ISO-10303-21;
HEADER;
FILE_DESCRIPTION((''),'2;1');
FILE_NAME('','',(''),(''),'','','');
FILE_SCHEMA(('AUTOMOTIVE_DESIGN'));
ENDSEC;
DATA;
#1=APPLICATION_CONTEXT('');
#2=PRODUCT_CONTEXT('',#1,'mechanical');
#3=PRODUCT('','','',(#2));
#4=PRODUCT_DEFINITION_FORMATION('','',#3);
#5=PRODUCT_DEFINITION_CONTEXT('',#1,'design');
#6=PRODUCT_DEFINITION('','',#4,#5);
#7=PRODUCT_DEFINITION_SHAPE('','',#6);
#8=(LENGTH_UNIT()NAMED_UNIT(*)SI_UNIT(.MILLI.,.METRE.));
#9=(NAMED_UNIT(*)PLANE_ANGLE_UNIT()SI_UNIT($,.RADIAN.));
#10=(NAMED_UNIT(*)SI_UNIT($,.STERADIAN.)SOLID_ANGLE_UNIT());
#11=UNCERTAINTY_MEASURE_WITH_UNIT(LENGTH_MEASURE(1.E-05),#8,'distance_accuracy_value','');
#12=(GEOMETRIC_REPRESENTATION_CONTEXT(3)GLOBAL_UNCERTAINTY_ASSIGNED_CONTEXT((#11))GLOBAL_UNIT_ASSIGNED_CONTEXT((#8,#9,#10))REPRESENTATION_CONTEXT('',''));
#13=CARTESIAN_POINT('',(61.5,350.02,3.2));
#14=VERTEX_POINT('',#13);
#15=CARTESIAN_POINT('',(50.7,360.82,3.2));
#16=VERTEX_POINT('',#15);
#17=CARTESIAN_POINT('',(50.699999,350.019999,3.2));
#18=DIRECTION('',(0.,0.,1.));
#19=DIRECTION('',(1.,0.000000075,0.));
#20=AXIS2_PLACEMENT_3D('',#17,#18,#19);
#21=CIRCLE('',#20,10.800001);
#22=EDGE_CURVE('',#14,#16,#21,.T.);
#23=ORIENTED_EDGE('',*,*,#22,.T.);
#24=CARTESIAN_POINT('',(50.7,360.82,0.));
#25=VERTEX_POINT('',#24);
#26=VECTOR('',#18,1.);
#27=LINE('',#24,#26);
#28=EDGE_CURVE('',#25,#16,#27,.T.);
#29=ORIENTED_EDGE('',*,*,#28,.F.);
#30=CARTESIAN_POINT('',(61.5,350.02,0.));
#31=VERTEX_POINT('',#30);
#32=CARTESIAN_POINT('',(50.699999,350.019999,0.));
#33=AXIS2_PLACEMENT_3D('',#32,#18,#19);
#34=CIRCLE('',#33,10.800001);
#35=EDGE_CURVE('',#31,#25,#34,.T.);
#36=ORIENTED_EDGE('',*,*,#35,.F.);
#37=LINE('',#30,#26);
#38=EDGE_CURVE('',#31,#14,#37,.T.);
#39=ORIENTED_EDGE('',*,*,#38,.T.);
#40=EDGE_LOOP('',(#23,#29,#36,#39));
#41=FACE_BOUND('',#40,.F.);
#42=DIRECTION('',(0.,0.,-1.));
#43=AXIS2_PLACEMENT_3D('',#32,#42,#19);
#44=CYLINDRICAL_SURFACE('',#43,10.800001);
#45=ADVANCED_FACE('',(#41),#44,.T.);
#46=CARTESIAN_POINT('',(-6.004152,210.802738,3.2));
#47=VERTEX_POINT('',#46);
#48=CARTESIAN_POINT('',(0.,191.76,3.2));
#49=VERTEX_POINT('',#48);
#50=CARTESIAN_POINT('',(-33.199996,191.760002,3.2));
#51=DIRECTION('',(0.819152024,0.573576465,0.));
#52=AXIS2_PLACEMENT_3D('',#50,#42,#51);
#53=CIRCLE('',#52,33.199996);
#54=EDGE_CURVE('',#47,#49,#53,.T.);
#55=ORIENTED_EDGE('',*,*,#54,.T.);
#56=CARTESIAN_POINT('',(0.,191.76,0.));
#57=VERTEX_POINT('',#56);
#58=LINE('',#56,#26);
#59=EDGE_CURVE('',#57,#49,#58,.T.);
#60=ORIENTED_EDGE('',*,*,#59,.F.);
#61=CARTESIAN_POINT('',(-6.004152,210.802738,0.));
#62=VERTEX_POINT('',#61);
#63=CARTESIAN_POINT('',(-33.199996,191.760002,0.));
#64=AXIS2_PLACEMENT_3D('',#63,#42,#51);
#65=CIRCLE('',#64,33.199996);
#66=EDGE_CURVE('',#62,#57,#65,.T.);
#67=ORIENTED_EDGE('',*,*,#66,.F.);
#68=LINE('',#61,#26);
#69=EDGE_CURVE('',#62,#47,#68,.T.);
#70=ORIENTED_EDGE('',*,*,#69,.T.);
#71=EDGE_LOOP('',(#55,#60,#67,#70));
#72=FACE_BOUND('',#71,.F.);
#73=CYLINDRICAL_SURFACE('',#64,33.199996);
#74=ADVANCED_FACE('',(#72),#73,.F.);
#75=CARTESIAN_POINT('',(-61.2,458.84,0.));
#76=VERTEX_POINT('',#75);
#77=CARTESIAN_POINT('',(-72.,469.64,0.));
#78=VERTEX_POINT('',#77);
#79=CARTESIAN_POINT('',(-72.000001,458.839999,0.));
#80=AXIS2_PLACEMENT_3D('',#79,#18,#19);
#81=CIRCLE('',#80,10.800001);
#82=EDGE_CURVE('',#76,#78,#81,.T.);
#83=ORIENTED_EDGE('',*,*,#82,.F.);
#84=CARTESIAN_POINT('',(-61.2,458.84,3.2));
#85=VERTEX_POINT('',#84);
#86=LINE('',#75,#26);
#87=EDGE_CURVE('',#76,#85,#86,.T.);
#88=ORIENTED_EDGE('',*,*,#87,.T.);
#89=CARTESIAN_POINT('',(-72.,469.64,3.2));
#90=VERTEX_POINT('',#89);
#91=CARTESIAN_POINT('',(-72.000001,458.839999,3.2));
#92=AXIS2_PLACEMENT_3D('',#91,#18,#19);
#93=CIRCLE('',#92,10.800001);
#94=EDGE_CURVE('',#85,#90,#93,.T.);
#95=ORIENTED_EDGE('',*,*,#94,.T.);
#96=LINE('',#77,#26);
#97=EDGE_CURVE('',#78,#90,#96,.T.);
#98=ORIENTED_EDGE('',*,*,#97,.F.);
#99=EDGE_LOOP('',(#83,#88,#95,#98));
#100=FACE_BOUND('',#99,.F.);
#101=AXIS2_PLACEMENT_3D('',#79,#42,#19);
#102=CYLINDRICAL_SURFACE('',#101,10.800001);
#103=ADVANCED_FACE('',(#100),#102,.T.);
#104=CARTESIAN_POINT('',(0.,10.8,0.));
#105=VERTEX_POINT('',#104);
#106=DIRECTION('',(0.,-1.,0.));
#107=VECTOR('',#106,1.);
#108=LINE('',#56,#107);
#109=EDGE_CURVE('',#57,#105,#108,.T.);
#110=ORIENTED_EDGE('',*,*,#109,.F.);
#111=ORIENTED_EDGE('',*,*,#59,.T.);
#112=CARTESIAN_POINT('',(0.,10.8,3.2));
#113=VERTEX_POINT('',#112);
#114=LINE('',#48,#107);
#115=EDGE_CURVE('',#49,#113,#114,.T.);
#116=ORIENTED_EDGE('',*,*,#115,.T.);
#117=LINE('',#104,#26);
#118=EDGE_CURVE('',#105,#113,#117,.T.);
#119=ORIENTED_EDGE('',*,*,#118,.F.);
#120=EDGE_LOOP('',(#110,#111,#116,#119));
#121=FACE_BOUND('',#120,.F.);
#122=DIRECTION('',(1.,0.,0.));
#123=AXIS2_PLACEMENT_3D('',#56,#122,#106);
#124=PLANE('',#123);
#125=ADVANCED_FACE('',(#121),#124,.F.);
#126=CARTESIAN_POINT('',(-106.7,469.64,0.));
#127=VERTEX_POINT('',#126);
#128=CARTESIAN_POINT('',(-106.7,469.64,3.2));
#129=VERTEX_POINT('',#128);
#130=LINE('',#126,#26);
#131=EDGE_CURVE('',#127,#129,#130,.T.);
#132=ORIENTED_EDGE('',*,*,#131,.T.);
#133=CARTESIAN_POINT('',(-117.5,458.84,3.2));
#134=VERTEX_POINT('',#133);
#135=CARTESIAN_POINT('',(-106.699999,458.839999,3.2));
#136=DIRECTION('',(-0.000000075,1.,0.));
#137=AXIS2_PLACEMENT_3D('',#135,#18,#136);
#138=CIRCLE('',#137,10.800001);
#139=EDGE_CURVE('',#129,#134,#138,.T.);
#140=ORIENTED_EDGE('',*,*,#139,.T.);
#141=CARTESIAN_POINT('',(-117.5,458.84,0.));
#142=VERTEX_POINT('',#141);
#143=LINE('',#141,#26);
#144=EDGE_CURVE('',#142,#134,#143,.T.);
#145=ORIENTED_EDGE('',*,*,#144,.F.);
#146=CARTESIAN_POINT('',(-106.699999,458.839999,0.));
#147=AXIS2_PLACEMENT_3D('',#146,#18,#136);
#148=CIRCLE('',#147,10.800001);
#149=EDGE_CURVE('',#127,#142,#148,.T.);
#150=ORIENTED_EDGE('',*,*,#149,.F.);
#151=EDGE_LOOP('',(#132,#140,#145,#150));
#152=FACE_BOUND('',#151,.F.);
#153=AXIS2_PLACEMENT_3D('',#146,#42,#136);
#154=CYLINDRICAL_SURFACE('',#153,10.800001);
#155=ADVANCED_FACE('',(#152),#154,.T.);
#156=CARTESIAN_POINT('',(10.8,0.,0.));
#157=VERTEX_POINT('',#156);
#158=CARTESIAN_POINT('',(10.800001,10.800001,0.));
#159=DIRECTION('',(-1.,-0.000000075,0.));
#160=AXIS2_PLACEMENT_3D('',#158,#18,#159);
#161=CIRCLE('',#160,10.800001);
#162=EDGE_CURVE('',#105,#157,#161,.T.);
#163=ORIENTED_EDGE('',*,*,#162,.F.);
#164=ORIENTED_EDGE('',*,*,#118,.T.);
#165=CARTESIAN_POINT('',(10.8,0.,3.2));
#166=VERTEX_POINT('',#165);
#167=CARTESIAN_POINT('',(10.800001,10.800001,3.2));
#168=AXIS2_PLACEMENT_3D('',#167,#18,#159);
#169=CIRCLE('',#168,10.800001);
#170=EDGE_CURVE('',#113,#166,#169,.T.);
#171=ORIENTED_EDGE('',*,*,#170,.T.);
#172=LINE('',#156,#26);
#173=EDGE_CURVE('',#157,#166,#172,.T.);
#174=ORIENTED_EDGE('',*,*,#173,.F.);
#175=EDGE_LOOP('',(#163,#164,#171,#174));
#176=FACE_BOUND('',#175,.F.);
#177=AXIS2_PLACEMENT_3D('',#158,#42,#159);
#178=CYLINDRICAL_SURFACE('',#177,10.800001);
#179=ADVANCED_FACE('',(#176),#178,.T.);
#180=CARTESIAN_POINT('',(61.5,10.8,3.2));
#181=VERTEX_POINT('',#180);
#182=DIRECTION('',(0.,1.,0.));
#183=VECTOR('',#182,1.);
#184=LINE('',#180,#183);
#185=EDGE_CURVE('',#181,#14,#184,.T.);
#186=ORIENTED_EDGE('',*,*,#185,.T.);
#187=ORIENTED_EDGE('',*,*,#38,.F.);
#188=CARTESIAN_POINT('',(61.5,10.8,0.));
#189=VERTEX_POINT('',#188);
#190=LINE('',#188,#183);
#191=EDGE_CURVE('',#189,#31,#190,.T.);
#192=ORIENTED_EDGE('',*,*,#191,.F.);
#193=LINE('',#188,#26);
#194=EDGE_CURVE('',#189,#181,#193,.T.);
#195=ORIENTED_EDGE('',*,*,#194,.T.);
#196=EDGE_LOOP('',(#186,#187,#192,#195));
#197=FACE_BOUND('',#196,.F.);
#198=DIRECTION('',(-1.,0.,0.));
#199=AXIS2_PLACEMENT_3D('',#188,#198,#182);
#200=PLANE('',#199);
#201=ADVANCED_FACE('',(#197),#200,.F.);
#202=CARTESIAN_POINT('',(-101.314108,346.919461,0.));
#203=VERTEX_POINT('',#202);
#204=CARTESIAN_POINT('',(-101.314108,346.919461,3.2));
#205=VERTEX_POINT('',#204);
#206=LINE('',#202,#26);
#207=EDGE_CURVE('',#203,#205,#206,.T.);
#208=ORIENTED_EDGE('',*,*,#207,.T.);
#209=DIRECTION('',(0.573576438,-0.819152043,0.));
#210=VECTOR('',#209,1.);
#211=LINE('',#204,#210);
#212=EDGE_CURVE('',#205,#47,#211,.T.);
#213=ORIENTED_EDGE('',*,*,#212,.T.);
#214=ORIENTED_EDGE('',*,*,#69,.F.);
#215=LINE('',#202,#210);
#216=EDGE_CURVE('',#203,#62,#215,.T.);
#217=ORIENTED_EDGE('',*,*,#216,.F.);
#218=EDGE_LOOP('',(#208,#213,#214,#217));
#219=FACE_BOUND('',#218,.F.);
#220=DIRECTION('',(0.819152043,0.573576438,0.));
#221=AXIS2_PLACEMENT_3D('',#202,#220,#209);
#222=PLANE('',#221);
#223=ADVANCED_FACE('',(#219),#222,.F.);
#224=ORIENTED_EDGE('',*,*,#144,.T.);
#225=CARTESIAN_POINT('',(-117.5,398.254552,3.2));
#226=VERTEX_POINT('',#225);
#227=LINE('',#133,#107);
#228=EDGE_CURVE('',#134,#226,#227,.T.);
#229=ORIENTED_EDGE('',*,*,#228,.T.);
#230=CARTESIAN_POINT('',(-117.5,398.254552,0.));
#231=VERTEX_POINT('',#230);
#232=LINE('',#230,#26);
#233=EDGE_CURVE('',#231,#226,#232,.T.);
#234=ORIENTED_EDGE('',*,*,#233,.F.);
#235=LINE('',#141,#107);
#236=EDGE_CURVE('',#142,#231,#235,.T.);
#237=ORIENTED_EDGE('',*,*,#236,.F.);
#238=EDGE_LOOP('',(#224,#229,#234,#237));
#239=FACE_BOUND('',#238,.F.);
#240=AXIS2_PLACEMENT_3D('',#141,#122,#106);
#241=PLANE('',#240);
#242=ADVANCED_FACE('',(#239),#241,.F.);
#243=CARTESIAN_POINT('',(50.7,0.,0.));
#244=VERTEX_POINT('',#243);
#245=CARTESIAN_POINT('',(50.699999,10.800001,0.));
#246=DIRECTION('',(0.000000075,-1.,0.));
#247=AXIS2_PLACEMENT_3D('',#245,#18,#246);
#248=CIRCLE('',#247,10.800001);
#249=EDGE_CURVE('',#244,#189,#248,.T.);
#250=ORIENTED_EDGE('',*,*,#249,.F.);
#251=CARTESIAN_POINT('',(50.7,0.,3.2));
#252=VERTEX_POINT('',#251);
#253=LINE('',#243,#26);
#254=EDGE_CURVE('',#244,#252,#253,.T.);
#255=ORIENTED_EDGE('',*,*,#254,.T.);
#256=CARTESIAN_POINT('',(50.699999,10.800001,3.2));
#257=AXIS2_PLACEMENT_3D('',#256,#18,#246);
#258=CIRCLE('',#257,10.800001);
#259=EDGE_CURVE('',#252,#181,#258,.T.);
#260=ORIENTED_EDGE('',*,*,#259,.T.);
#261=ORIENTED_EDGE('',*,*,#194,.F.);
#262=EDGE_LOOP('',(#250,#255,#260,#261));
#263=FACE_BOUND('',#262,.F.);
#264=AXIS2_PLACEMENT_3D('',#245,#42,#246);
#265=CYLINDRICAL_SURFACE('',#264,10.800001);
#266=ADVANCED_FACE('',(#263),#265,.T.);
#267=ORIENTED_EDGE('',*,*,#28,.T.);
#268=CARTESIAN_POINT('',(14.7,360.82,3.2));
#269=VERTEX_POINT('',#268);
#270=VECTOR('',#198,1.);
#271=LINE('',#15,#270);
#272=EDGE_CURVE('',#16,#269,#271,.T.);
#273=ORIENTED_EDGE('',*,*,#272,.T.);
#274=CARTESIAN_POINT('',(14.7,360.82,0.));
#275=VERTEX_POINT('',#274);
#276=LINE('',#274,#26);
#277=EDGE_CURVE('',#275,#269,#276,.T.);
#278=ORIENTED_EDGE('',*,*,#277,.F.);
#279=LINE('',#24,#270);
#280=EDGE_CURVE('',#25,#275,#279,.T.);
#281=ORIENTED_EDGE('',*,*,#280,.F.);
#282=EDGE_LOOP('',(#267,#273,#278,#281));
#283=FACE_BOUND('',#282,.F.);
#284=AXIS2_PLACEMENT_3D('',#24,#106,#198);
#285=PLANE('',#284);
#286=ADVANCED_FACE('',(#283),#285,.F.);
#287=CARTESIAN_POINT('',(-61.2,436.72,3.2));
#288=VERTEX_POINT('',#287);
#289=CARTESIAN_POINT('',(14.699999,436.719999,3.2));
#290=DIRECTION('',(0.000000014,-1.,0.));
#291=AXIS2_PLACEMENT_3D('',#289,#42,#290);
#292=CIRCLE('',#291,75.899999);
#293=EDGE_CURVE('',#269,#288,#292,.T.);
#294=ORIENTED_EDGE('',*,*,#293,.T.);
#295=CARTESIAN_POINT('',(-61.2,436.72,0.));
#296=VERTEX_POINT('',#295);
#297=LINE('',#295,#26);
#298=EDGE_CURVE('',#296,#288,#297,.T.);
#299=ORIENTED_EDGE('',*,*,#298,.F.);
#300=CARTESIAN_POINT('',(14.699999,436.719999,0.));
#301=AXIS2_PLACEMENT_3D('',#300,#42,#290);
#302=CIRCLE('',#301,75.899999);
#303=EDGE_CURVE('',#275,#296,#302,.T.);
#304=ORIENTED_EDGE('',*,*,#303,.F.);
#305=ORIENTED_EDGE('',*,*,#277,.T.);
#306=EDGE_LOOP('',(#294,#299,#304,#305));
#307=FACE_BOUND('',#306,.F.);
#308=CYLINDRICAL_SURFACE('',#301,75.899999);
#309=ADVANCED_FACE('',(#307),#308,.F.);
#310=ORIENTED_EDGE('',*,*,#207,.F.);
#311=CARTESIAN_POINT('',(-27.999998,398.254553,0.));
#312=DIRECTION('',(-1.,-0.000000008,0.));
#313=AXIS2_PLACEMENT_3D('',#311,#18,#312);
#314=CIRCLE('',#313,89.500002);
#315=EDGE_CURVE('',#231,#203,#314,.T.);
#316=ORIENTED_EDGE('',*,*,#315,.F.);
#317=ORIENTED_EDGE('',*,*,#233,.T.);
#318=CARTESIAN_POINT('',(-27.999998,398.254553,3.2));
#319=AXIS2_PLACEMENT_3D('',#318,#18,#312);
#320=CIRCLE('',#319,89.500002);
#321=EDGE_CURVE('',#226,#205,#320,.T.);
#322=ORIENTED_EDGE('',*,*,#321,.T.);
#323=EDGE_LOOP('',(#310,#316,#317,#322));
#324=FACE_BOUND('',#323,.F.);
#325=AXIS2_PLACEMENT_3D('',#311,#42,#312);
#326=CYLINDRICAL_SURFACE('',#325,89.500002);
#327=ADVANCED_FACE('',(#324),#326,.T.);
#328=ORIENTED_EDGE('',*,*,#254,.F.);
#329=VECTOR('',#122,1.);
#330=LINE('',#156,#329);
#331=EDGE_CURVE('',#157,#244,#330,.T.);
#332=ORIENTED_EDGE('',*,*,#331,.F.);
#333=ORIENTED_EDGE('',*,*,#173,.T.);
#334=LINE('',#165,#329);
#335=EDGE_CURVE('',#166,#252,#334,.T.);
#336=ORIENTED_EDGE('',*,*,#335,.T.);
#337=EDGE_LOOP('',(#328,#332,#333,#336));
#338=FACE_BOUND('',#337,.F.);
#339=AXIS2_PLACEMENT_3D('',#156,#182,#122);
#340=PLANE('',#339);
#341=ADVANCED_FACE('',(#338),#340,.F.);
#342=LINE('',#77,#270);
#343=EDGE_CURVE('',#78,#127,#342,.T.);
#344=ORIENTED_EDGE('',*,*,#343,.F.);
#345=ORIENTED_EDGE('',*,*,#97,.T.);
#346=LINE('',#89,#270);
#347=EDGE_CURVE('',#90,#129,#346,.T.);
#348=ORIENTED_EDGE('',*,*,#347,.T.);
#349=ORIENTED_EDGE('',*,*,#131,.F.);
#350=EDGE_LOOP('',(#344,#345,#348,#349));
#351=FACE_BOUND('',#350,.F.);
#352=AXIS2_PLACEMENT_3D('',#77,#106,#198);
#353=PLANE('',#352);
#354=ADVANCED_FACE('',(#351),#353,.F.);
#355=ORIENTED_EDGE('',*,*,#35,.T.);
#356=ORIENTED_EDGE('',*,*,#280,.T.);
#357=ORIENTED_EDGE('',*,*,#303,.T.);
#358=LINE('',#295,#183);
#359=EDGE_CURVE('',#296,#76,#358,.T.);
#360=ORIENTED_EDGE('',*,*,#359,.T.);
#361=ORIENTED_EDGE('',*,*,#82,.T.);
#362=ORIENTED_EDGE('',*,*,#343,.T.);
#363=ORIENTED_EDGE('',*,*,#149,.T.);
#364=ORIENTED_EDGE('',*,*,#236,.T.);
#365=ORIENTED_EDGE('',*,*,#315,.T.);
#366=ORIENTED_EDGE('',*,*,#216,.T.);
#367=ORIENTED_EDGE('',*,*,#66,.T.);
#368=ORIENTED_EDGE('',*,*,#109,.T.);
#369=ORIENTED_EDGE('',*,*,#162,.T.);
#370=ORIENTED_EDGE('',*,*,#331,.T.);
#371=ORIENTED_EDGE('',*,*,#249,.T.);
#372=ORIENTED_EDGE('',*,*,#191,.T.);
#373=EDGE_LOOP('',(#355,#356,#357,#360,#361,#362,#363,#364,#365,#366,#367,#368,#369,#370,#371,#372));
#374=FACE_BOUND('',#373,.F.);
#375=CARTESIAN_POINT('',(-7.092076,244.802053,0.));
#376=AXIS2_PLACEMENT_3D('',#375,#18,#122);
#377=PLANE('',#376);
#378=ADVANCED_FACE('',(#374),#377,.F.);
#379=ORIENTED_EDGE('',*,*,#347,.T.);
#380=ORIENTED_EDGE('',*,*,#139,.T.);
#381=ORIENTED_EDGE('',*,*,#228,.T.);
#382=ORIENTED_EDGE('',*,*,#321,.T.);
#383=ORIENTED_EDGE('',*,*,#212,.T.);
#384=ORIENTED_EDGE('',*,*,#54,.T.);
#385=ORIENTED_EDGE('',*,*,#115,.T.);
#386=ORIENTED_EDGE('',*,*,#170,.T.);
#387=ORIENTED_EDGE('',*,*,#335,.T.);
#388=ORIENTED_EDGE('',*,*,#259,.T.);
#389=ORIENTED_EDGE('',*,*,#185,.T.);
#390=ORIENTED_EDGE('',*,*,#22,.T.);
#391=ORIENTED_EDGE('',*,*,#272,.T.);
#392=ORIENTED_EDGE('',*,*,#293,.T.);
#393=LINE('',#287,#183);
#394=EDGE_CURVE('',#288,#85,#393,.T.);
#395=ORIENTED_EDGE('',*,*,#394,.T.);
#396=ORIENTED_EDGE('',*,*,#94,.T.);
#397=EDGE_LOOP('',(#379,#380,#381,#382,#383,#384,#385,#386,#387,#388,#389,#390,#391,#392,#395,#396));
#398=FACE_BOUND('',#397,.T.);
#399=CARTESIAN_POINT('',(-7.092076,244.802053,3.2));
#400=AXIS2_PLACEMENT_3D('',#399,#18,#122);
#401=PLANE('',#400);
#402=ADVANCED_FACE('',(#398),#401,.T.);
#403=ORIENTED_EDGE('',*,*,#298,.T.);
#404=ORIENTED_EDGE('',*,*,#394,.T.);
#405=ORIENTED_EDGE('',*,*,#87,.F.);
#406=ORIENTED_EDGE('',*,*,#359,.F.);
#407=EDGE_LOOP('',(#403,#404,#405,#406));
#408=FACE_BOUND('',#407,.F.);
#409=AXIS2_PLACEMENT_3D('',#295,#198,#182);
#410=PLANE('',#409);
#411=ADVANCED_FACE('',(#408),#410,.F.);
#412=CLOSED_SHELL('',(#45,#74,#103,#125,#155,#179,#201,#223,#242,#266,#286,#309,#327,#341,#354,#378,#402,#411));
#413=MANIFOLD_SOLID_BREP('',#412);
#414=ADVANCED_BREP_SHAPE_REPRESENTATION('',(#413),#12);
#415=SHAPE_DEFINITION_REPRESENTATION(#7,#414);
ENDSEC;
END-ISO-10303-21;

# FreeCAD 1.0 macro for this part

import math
import FreeCAD as App
import Part
import Sketcher

V = App.Vector
Q = App.Units.Quantity

doc = App.newDocument("Part")
params = doc.addObject("Spreadsheet::Sheet", "Params")
for row, (alias, value) in enumerate([
    ("sketch1_radius", "10.800001 mm"),
    ("sketch1_radius2", "75.899999 mm"),
    ("sketch1_width", "36 mm"),
    ("sketch1_width2", "39.9 mm"),
    ("sketch1_width3", "34.7 mm"),
    ("pad1_length", "3.2 mm"),
], start=1):
    params.set(f"A{row}", alias)
    params.set(f"B{row}", "=" + value)
    params.setAlias(f"B{row}", alias)

body = doc.addObject("PartDesign::Body", "Body")

# Sketch on XY plane
sketch1 = body.newObject("Sketcher::SketchObject", "Sketch")
sketch1.AttachmentSupport = (doc.getObject("XY_Plane"), [""])
sketch1.MapMode = "FlatFace"
sketch1.addGeometry([
    Part.LineSegment(V(0, 192, 0), V(0, 11, 0)),  # 0
    Part.ArcOfCircle(Part.Circle(V(11, 11, 0), V(0, 0, 1), 11), math.radians(-180), math.radians(-90)),  # 1
    Part.LineSegment(V(11, 0, 0), V(51, 0, 0)),  # 2
    Part.ArcOfCircle(Part.Circle(V(51, 11, 0), V(0, 0, 1), 11), math.radians(-90), math.radians(0)),  # 3
    Part.LineSegment(V(62, 11, 0), V(62, 350, 0)),  # 4
    Part.ArcOfCircle(Part.Circle(V(51, 350, 0), V(0, 0, 1), 11), math.radians(0), math.radians(90)),  # 5
    Part.LineSegment(V(51, 361, 0), V(15, 361, 0)),  # 6
    Part.ArcOfCircle(Part.Circle(V(15, 437, 0), V(0, 0, 1), 76), math.radians(180), math.radians(270)),  # 7
    Part.LineSegment(V(-61, 437, 0), V(-61, 459, 0)),  # 8
    Part.ArcOfCircle(Part.Circle(V(-72, 459, 0), V(0, 0, 1), 11), math.radians(0), math.radians(90)),  # 9
    Part.LineSegment(V(-72, 470, 0), V(-107, 470, 0)),  # 10
    Part.ArcOfCircle(Part.Circle(V(-107, 459, 0), V(0, 0, 1), 11), math.radians(90), math.radians(180)),  # 11
    Part.LineSegment(V(-118, 459, 0), V(-118, 398, 0)),  # 12
    Part.ArcOfCircle(Part.Circle(V(-28, 398, 0), V(0, 0, 1), 90), math.radians(-180), math.radians(-145)),  # 13
    Part.LineSegment(V(-101, 347, 0), V(-6, 211, 0)),  # 14
    Part.ArcOfCircle(Part.Circle(V(-33, 192, 0), V(0, 0, 1), 33), math.radians(0), math.radians(35)),  # 15
], False)
sketch1.addConstraint([
    Sketcher.Constraint("Tangent", 0, 2, 1, 1),
    Sketcher.Constraint("Tangent", 1, 2, 2, 1),
    Sketcher.Constraint("Tangent", 2, 2, 3, 1),
    Sketcher.Constraint("Tangent", 3, 2, 4, 1),
    Sketcher.Constraint("Tangent", 4, 2, 5, 1),
    Sketcher.Constraint("Tangent", 5, 2, 6, 1),
    Sketcher.Constraint("Tangent", 6, 2, 7, 2),
    Sketcher.Constraint("Tangent", 7, 1, 8, 1),
    Sketcher.Constraint("Tangent", 8, 2, 9, 1),
    Sketcher.Constraint("Tangent", 9, 2, 10, 1),
    Sketcher.Constraint("Tangent", 10, 2, 11, 1),
    Sketcher.Constraint("Tangent", 11, 2, 12, 1),
    Sketcher.Constraint("Tangent", 12, 2, 13, 1),
    Sketcher.Constraint("Tangent", 13, 2, 14, 1),
    Sketcher.Constraint("Tangent", 14, 2, 15, 2),
    Sketcher.Constraint("Tangent", 15, 1, 0, 1),
    Sketcher.Constraint("Vertical", 0),
    Sketcher.Constraint("Horizontal", 2),
    Sketcher.Constraint("Vertical", 4),
    Sketcher.Constraint("Horizontal", 6),
    Sketcher.Constraint("Vertical", 8),
    Sketcher.Constraint("Horizontal", 10),
    Sketcher.Constraint("Vertical", 12),
    Sketcher.Constraint("Equal", 1, 3),
    Sketcher.Constraint("Equal", 3, 5),
    Sketcher.Constraint("Equal", 5, 9),
    Sketcher.Constraint("Equal", 9, 11),
    Sketcher.Constraint("PointOnObject", 0, 2, -2),
    Sketcher.Constraint("PointOnObject", 1, 2, -1),
    Sketcher.Constraint("Radius", 1, Q("10.800001 mm")),
    Sketcher.Constraint("Radius", 7, Q("75.899999 mm")),
    Sketcher.Constraint("DistanceX", 6, 2, 6, 1, Q("36 mm")),
    Sketcher.Constraint("Angle", 14, Q("-55 deg")),
    Sketcher.Constraint("DistanceX", 2, 1, 2, 2, Q("39.9 mm")),
    Sketcher.Constraint("DistanceX", 10, 2, 10, 1, Q("34.7 mm")),
    Sketcher.Constraint("DistanceY", 0, 2, 0, 1, Q("180.96 mm")),
    Sketcher.Constraint("DistanceY", 4, 1, 4, 2, Q("339.22 mm")),
    Sketcher.Constraint("DistanceY", 8, 1, 8, 2, Q("22.12 mm")),
    Sketcher.Constraint("DistanceX", 11, 3, 13, 3, Q("78.700001 mm")),
    Sketcher.Constraint("Radius", 15, Q("33.199996 mm")),
])
sketch1.setExpression("Constraints[29]", "Params.sketch1_radius")
sketch1.setExpression("Constraints[30]", "Params.sketch1_radius2")
sketch1.setExpression("Constraints[31]", "Params.sketch1_width")
sketch1.setExpression("Constraints[33]", "Params.sketch1_width2")
sketch1.setExpression("Constraints[34]", "Params.sketch1_width3")
pad1 = body.newObject("PartDesign::Pad", "Pad")
pad1.Profile = sketch1
pad1.setExpression("Length", "Params.pad1_length")

doc.recompute()
